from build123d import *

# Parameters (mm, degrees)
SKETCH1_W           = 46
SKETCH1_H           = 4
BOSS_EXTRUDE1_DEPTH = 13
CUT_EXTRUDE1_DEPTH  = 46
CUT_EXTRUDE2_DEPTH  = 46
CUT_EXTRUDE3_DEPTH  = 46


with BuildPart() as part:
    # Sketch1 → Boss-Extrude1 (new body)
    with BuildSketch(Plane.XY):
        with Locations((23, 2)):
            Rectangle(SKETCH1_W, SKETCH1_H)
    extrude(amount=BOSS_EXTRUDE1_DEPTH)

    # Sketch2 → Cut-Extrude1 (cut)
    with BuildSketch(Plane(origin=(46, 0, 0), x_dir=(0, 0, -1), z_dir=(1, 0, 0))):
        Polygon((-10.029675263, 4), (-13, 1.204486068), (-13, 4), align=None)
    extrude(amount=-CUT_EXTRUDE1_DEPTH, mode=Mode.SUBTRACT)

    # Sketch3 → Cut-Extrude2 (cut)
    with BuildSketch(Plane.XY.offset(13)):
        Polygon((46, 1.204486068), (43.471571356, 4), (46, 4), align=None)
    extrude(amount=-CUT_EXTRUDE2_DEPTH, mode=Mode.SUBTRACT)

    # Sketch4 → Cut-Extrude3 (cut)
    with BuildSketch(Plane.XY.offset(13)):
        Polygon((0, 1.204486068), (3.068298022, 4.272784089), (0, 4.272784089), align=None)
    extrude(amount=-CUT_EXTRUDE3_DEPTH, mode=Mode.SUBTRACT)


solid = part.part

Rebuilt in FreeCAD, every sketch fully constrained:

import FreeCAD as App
import Part
import Sketcher
from FreeCAD import Vector

doc = App.newDocument("Part")
body = doc.addObject("PartDesign::Body", "Body")

# Sketch on XY plane
sketch1 = body.newObject("Sketcher::SketchObject", "Sketch")
sketch1.AttachmentSupport = (doc.getObject("XY_Plane"), [""])
sketch1.MapMode = "FlatFace"
sketch1.addGeometry([
    Part.LineSegment(Vector(0, 4, 0), Vector(0, 0, 0)),
    Part.LineSegment(Vector(0, 0, 0), Vector(46, 0, 0)),
    Part.LineSegment(Vector(46, 0, 0), Vector(46, 4, 0)),
    Part.LineSegment(Vector(46, 4, 0), Vector(0, 4, 0)),
], False)
sketch1.addConstraint([
    Sketcher.Constraint("Coincident", 0, 2, 1, 1),
    Sketcher.Constraint("Coincident", 1, 2, 2, 1),
    Sketcher.Constraint("Coincident", 2, 2, 3, 1),
    Sketcher.Constraint("Coincident", 3, 2, 0, 1),
    Sketcher.Constraint("Vertical", 0),
    Sketcher.Constraint("Horizontal", 1),
    Sketcher.Constraint("Vertical", 2),
    Sketcher.Constraint("Horizontal", 3),
    Sketcher.Constraint("Coincident", 0, 2, -1, 1),
    Sketcher.Constraint("DistanceX", 1, 1, 1, 2, 46.0),
    Sketcher.Constraint("DistanceY", 0, 2, 0, 1, 4.0),
])
pad1 = body.newObject("PartDesign::Pad", "Pad")
pad1.Profile = sketch1
pad1.Length = 13

# Sketch on YZ plane
sketch2 = body.newObject("Sketcher::SketchObject", "Sketch001")
sketch2.AttachmentSupport = (doc.getObject("YZ_Plane"), [""])
sketch2.MapMode = "FlatFace"
sketch2.AttachmentOffset = App.Placement(Vector(0, 0, 46), App.Rotation())
sketch2.addGeometry([
    Part.LineSegment(Vector(1.204486, 13, 0), Vector(4, 10.029675, 0)),
    Part.LineSegment(Vector(4, 10.029675, 0), Vector(4, 13, 0)),
    Part.LineSegment(Vector(4, 13, 0), Vector(1.204486, 13, 0)),
], False)
sketch2.addConstraint([
    Sketcher.Constraint("Coincident", 0, 2, 1, 1),
    Sketcher.Constraint("Coincident", 1, 2, 2, 1),
    Sketcher.Constraint("Coincident", 2, 2, 0, 1),
    Sketcher.Constraint("Vertical", 1),
    Sketcher.Constraint("Horizontal", 2),
    Sketcher.Constraint("DistanceX", -1, 1, 0, 2, 4.0),
    Sketcher.Constraint("DistanceY", -1, 1, 1, 2, 13.0),
    Sketcher.Constraint("DistanceX", 2, 2, 2, 1, 2.795514),
    Sketcher.Constraint("DistanceY", 1, 1, 1, 2, 2.970325),
])
pocket1 = body.newObject("PartDesign::Pocket", "Pocket")
pocket1.Profile = sketch2
pocket1.Length = 46

# Sketch on XY plane
sketch3 = body.newObject("Sketcher::SketchObject", "Sketch002")
sketch3.AttachmentSupport = (doc.getObject("XY_Plane"), [""])
sketch3.MapMode = "FlatFace"
sketch3.AttachmentOffset = App.Placement(Vector(0, 0, 13), App.Rotation())
sketch3.addGeometry([
    Part.LineSegment(Vector(43.471571, 4, 0), Vector(46, 1.204486, 0)),
    Part.LineSegment(Vector(46, 1.204486, 0), Vector(46, 4, 0)),
    Part.LineSegment(Vector(46, 4, 0), Vector(43.471571, 4, 0)),
], False)
sketch3.addConstraint([
    Sketcher.Constraint("Coincident", 0, 2, 1, 1),
    Sketcher.Constraint("Coincident", 1, 2, 2, 1),
    Sketcher.Constraint("Coincident", 2, 2, 0, 1),
    Sketcher.Constraint("Vertical", 1),
    Sketcher.Constraint("Horizontal", 2),
    Sketcher.Constraint("DistanceX", -1, 1, 0, 2, 46.0),
    Sketcher.Constraint("DistanceY", -1, 1, 1, 2, 4.0),
    Sketcher.Constraint("DistanceX", 2, 2, 2, 1, 2.528429),
    Sketcher.Constraint("Distance", 0, 3.76933),
])
pocket2 = body.newObject("PartDesign::Pocket", "Pocket001")
pocket2.Profile = sketch3
pocket2.Length = 46

# Sketch on XY plane
sketch4 = body.newObject("Sketcher::SketchObject", "Sketch003")
sketch4.AttachmentSupport = (doc.getObject("XY_Plane"), [""])
sketch4.MapMode = "FlatFace"
sketch4.AttachmentOffset = App.Placement(Vector(0, 0, 13), App.Rotation())
sketch4.addGeometry([
    Part.LineSegment(Vector(0, 1.204486, 0), Vector(3.068298, 4.272784, 0)),
    Part.LineSegment(Vector(3.068298, 4.272784, 0), Vector(0, 4.272784, 0)),
    Part.LineSegment(Vector(0, 4.272784, 0), Vector(0, 1.204486, 0)),
], False)
sketch4.addConstraint([
    Sketcher.Constraint("Coincident", 0, 2, 1, 1),
    Sketcher.Constraint("Coincident", 1, 2, 2, 1),
    Sketcher.Constraint("Coincident", 2, 2, 0, 1),
    Sketcher.Constraint("Horizontal", 1),
    Sketcher.Constraint("Vertical", 2),
    Sketcher.Constraint("PointOnObject", 1, 2, -2),
    Sketcher.Constraint("Equal", 1, 2),
    Sketcher.Constraint("DistanceX", 1, 2, 1, 1, 3.068298),
    Sketcher.Constraint("DistanceY", -1, 1, 0, 2, 4.272784),
])
pocket3 = body.newObject("PartDesign::Pocket", "Pocket002")
pocket3.Profile = sketch4
pocket3.Length = 46

doc.recompute()
